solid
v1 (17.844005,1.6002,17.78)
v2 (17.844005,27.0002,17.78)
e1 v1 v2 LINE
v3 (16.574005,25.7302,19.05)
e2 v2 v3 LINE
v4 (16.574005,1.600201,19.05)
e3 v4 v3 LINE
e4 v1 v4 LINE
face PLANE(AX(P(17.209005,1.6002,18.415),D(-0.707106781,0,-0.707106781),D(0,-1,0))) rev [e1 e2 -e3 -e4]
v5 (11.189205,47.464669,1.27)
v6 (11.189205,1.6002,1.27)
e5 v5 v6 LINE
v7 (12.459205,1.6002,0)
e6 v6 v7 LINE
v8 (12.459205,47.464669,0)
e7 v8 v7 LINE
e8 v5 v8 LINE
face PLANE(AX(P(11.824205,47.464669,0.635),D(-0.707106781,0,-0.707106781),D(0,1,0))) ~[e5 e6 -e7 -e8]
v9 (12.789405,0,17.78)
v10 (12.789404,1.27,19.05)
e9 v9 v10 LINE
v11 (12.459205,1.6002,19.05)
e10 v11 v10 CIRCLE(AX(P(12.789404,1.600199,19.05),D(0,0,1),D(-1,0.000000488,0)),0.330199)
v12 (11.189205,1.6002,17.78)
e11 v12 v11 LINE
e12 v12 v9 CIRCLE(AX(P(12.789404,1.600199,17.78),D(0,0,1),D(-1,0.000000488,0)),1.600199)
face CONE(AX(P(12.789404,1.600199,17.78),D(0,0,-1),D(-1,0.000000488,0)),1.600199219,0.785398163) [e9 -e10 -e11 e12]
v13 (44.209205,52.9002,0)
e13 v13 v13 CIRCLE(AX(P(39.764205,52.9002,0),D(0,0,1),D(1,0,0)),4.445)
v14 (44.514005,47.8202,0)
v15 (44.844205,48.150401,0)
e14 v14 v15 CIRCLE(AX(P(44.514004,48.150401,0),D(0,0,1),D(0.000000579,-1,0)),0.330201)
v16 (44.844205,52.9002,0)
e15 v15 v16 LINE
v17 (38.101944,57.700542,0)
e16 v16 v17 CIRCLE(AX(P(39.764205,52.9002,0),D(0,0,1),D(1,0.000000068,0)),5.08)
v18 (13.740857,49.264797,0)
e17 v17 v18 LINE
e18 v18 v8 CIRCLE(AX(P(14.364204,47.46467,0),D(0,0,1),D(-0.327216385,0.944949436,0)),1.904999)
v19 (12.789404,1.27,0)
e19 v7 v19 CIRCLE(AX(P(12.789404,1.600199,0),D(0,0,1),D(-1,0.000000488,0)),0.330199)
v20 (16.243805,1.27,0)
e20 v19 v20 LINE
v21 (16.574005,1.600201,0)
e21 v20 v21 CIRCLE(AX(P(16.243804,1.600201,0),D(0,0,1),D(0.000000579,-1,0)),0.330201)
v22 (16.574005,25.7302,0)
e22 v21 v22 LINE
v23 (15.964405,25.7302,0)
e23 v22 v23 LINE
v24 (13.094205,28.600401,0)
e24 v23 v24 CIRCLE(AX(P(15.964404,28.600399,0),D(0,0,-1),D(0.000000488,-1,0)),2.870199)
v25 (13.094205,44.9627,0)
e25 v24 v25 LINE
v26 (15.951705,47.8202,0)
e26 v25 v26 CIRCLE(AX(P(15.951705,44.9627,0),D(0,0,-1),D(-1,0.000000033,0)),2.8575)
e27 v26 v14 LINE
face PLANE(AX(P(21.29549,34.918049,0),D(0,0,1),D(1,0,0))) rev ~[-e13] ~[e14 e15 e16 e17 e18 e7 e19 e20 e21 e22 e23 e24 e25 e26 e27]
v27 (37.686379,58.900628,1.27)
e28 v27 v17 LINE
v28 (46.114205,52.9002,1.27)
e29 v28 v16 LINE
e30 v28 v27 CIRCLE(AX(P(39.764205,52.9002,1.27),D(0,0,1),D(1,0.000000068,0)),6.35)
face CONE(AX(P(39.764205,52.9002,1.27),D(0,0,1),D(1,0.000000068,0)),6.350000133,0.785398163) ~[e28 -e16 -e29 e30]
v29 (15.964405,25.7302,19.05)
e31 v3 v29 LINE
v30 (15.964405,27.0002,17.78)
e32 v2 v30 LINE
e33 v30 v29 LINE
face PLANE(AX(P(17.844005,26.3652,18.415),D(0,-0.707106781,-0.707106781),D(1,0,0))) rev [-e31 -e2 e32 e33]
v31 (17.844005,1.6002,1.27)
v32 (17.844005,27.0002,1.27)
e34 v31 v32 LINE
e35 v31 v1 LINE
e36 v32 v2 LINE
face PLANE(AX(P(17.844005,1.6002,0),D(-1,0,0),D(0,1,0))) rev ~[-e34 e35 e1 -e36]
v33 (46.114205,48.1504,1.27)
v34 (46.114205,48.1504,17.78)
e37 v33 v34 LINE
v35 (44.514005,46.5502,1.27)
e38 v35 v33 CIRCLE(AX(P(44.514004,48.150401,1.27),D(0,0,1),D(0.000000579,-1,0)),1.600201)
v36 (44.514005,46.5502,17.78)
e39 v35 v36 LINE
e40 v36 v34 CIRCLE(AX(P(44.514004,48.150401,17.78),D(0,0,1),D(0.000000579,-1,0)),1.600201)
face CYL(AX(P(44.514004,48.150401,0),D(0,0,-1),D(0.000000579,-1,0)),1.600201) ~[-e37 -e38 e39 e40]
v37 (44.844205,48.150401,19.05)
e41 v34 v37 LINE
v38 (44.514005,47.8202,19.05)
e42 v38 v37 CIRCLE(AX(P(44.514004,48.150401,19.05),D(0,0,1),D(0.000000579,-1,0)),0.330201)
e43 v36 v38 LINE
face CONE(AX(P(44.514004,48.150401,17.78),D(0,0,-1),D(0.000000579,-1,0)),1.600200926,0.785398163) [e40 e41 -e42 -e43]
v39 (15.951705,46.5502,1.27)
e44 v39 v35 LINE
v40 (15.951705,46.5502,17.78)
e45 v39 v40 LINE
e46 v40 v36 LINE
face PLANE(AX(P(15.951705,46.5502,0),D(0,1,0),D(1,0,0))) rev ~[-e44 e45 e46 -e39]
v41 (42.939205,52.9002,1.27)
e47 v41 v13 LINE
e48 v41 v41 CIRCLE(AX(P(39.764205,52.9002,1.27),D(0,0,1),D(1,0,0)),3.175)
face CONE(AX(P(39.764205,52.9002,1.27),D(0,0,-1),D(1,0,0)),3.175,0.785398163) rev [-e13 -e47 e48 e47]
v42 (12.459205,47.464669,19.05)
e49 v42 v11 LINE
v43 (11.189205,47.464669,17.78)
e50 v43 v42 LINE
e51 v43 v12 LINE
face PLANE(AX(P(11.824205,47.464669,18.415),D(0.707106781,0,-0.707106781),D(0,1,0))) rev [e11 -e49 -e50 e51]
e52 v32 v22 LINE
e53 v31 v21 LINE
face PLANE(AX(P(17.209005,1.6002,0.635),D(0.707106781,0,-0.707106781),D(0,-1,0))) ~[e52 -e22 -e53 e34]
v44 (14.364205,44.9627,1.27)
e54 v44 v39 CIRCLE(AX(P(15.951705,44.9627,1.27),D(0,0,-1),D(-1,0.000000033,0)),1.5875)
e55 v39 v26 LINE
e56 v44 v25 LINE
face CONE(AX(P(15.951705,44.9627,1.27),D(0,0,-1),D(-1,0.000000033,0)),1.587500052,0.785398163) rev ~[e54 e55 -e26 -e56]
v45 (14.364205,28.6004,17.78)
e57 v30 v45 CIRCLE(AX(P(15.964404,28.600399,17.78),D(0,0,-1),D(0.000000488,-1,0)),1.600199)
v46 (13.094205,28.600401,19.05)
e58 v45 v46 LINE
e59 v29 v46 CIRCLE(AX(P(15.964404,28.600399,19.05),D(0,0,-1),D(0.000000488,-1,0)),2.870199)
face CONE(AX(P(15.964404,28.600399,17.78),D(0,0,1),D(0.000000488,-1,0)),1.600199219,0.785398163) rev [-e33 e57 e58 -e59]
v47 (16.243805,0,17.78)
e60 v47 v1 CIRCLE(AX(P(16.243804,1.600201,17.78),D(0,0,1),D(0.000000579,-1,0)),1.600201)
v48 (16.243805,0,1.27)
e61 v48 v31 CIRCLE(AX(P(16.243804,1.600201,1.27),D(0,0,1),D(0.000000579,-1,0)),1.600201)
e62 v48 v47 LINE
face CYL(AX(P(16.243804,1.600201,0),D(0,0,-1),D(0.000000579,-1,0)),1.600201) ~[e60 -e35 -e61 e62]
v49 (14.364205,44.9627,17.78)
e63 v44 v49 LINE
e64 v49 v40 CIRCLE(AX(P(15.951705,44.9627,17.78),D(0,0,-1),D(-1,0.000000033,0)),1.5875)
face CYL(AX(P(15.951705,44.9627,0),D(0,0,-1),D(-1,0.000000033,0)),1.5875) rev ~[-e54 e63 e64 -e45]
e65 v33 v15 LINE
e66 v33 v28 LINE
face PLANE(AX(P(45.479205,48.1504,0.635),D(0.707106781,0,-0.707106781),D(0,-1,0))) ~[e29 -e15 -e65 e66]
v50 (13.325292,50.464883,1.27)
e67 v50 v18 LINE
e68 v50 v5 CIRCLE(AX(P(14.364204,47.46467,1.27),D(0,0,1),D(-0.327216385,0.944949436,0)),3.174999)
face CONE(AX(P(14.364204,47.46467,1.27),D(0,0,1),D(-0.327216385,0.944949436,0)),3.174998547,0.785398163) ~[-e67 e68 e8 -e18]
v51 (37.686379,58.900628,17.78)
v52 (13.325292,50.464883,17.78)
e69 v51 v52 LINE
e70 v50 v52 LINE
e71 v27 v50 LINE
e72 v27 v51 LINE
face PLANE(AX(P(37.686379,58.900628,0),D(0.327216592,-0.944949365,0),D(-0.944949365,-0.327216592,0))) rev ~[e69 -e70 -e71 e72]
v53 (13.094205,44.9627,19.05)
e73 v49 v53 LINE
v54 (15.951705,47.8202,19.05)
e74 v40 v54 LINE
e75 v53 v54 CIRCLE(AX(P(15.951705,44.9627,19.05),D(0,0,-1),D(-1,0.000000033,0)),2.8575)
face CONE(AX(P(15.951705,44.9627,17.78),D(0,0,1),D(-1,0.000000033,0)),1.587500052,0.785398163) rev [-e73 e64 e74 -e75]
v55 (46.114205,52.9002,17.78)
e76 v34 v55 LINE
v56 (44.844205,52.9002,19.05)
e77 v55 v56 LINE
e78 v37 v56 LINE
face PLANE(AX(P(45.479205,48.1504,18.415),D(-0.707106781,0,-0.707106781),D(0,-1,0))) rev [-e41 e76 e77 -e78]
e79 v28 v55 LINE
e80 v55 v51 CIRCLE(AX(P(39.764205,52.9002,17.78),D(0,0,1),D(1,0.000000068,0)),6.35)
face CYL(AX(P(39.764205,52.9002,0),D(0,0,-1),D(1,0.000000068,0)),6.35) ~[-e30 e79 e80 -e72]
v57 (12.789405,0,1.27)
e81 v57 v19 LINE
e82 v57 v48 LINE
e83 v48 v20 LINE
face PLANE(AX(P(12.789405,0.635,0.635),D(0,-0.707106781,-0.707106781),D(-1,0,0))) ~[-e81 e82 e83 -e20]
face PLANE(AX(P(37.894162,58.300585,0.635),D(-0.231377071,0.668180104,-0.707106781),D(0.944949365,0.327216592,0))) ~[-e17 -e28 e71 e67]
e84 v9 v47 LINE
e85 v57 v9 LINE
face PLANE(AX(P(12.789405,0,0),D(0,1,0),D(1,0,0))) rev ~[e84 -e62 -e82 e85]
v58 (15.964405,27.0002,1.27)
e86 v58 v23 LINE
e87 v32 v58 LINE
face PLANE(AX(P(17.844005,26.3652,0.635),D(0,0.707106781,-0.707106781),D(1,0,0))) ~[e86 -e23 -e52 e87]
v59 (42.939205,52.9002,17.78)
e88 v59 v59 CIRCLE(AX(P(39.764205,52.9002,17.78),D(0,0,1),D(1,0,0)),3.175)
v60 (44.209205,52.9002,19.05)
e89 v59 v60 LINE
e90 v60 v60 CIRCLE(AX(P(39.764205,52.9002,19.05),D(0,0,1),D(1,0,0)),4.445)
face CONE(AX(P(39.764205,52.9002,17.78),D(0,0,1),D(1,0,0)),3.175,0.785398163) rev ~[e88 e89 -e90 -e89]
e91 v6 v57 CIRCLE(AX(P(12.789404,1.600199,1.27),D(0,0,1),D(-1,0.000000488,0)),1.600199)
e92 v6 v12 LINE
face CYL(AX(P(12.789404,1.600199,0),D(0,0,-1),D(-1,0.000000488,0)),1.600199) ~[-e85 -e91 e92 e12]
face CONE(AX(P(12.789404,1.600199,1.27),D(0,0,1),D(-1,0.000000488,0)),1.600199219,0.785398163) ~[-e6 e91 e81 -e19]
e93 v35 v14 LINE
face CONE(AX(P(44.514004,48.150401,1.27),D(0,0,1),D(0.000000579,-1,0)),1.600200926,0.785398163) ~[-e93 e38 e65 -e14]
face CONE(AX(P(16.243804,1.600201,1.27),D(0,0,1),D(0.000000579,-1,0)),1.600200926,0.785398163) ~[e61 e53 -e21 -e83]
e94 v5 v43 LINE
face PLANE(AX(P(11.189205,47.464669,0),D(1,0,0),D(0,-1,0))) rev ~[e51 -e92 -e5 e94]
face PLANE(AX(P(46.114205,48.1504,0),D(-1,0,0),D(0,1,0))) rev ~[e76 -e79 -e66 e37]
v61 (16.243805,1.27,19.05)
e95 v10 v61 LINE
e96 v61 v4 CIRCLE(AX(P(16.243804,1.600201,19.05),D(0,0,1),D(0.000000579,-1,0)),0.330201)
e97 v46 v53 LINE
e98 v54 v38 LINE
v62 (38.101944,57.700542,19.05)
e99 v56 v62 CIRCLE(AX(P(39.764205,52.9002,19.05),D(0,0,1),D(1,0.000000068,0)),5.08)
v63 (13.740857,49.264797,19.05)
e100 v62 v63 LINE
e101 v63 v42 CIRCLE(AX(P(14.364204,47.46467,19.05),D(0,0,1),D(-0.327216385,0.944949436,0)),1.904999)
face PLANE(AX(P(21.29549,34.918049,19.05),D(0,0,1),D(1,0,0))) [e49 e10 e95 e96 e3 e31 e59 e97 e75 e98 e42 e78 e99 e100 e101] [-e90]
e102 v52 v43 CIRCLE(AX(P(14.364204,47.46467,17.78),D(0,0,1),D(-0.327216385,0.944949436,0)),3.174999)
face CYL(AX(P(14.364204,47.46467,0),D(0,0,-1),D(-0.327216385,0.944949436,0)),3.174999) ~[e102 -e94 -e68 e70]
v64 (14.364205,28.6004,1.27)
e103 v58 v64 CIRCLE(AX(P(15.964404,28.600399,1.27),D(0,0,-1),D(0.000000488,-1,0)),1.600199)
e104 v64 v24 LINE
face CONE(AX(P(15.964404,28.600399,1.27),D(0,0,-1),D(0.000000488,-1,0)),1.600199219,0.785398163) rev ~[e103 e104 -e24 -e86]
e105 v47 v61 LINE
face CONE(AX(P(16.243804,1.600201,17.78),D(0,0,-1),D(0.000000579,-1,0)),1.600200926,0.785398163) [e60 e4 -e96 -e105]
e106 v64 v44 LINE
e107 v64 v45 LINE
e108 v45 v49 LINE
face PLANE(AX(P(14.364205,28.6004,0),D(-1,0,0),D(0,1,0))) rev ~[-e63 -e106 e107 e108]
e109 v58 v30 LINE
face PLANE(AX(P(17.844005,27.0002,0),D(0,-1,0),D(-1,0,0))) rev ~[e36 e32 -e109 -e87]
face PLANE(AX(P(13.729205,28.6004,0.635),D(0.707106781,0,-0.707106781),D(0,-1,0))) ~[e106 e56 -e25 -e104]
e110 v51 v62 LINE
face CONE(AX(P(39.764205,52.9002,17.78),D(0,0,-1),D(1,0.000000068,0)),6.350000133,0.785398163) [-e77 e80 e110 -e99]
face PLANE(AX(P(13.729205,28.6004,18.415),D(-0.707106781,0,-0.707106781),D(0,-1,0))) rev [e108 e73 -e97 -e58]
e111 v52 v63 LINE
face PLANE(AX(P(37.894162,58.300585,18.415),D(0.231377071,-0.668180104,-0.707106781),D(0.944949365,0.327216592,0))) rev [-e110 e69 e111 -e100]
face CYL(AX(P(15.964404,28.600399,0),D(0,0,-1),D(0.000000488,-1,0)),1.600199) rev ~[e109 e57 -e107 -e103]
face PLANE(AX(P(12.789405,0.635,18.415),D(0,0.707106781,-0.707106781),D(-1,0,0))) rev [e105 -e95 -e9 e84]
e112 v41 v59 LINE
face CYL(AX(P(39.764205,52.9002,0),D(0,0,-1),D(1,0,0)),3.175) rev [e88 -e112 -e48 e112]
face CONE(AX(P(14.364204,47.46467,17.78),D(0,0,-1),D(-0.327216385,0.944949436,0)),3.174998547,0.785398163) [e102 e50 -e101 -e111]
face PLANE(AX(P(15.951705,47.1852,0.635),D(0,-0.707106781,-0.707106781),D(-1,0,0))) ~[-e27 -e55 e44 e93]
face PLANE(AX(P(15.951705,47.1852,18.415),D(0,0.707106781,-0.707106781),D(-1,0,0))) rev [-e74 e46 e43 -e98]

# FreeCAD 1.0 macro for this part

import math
import FreeCAD as App
import Part
import Sketcher
from FreeCAD import Vector
Q = App.Units.Quantity


def edges_at(feature, points):
    """Names of the edges that pass closest to the given points."""
    edges = feature.Shape.Edges
    near = lambda p: min(range(len(edges)), key=lambda i: edges[i].distToShape(Part.Vertex(*p))[0])
    return sorted({f"Edge{near(p) + 1}" for p in points})

doc = App.newDocument("Part")
params = doc.addObject("Spreadsheet::Sheet", "Params")
for row, (alias, value) in enumerate([
    ("sketch1_diameter", "0.25 in"),
    ("sketch1_height", "1 in"),
    ("sketch1_radius", "0.25 in"),
    ("sketch1_radius2", "0.063 in"),
    ("sketch1_radius3", "0.0625 in"),
    ("pad1_length", "0.75 in"),
    ("chamfer_size", "0.05 in"),
], start=1):
    params.set(f"A{row}", alias)
    params.set(f"B{row}", "=" + value)
    params.setAlias(f"B{row}", alias)

body = doc.addObject("PartDesign::Body", "Body")

# Sketch on XY plane
sketch1 = body.newObject("Sketcher::SketchObject", "Sketch")
sketch1.AttachmentSupport = (doc.getObject("XY_Plane"), [""])
sketch1.MapMode = "FlatFace"
sketch1.addGeometry(Part.ArcOfCircle(Part.Circle(Vector(16, 28.6, 0), Vector(0, 0, 1), 1.6), math.radians(180), math.radians(270)), False)
sketch1.addGeometry(Part.LineSegment(Vector(14.4, 28.6, 0), Vector(14.4, 45, 0)), False)
sketch1.addGeometry(Part.ArcOfCircle(Part.Circle(Vector(16, 45, 0), Vector(0, 0, 1), 1.6), math.radians(90), math.radians(180)), False)
sketch1.addGeometry(Part.LineSegment(Vector(16, 46.6, 0), Vector(44.5, 46.6, 0)), False)
sketch1.addGeometry(Part.ArcOfCircle(Part.Circle(Vector(44.5, 48.2, 0), Vector(0, 0, 1), 1.6), math.radians(-90), math.radians(0)), False)
sketch1.addGeometry(Part.LineSegment(Vector(46.1, 48.2, 0), Vector(46.1, 52.9, 0)), False)
sketch1.addGeometry(Part.ArcOfCircle(Part.Circle(Vector(39.8, 52.9, 0), Vector(0, 0, 1), 6.4), math.radians(0), math.radians(109)), False)
sketch1.addGeometry(Part.LineSegment(Vector(37.7, 58.9, 0), Vector(13.3, 50.5, 0)), False)
sketch1.addGeometry(Part.ArcOfCircle(Part.Circle(Vector(14.4, 47.5, 0), Vector(0, 0, 1), 3.2), math.radians(109), math.radians(180)), False)
sketch1.addGeometry(Part.LineSegment(Vector(11.2, 47.5, 0), Vector(11.2, 1.6, 0)), False)
sketch1.addGeometry(Part.ArcOfCircle(Part.Circle(Vector(12.8, 1.6, 0), Vector(0, 0, 1), 1.6), math.radians(180), math.radians(270)), False)
sketch1.addGeometry(Part.LineSegment(Vector(12.8, 0, 0), Vector(16.2, 0, 0)), False)
sketch1.addGeometry(Part.ArcOfCircle(Part.Circle(Vector(16.2, 1.6, 0), Vector(0, 0, 1), 1.6), math.radians(-90), math.radians(0)), False)
sketch1.addGeometry(Part.LineSegment(Vector(17.8, 1.6, 0), Vector(17.8, 27, 0)), False)
sketch1.addGeometry(Part.LineSegment(Vector(17.8, 27, 0), Vector(16, 27, 0)), False)
sketch1.addGeometry(Part.Circle(Vector(39.8, 52.9, 0), Vector(0, 0, 1), 3.2), False)
sketch1.addConstraint(Sketcher.Constraint("Tangent", 0, 1, 1, 1))
sketch1.addConstraint(Sketcher.Constraint("Tangent", 1, 2, 2, 2))
sketch1.addConstraint(Sketcher.Constraint("Tangent", 2, 1, 3, 1))
sketch1.addConstraint(Sketcher.Constraint("Tangent", 3, 2, 4, 1))
sketch1.addConstraint(Sketcher.Constraint("Tangent", 4, 2, 5, 1))
sketch1.addConstraint(Sketcher.Constraint("Tangent", 5, 2, 6, 1))
sketch1.addConstraint(Sketcher.Constraint("Tangent", 6, 2, 7, 1))
sketch1.addConstraint(Sketcher.Constraint("Tangent", 7, 2, 8, 1))
sketch1.addConstraint(Sketcher.Constraint("Tangent", 8, 2, 9, 1))
sketch1.addConstraint(Sketcher.Constraint("Tangent", 9, 2, 10, 1))
sketch1.addConstraint(Sketcher.Constraint("Tangent", 10, 2, 11, 1))
sketch1.addConstraint(Sketcher.Constraint("Tangent", 11, 2, 12, 1))
sketch1.addConstraint(Sketcher.Constraint("Tangent", 12, 2, 13, 1))
sketch1.addConstraint(Sketcher.Constraint("Coincident", 13, 2, 14, 1))
sketch1.addConstraint(Sketcher.Constraint("Tangent", 14, 2, 0, 2))
sketch1.addConstraint(Sketcher.Constraint("Vertical", 1))
sketch1.addConstraint(Sketcher.Constraint("Horizontal", 3))
sketch1.addConstraint(Sketcher.Constraint("Vertical", 5))
sketch1.addConstraint(Sketcher.Constraint("Vertical", 9))
sketch1.addConstraint(Sketcher.Constraint("Horizontal", 11))
sketch1.addConstraint(Sketcher.Constraint("Vertical", 13))
sketch1.addConstraint(Sketcher.Constraint("Horizontal", 14))
sketch1.addConstraint(Sketcher.Constraint("Coincident", 15, 3, 6, 3))
sketch1.addConstraint(Sketcher.Constraint("Equal", 0, 4))
sketch1.addConstraint(Sketcher.Constraint("Equal", 4, 10))
sketch1.addConstraint(Sketcher.Constraint("Equal", 10, 12))
sketch1.addConstraint(Sketcher.Constraint("Equal", 8, 15))
sketch1.addConstraint(Sketcher.Constraint("PointOnObject", 10, 2, -1))
sketch1.addConstraint(Sketcher.Constraint("Vertical", 8, 3, 0, 1))
sketch1.addConstraint(Sketcher.Constraint("Diameter", 15, Q("0.25 in")))
sketch1.addConstraint(Sketcher.Constraint("DistanceY", 13, 1, 13, 2, Q("1 in")))
sketch1.addConstraint(Sketcher.Constraint("Radius", 6, Q("0.25 in")))
sketch1.addConstraint(Sketcher.Constraint("Radius", 0, Q("0.063 in")))
sketch1.addConstraint(Sketcher.Constraint("Radius", 2, Q("0.0625 in")))
sketch1.addConstraint(Sketcher.Constraint("DistanceX", 8, 3, 6, 3, Q("1.0000001 in")))
sketch1.addConstraint(Sketcher.Constraint("DistanceX", 11, 1, 11, 2, Q("0.136 in")))
sketch1.addConstraint(Sketcher.Constraint("DistanceY", 5, 1, 5, 2, Q("0.187 in")))
sketch1.addConstraint(Sketcher.Constraint("DistanceY", 1, 1, 1, 2, 16.3623))
sketch1.addConstraint(Sketcher.Constraint("DistanceY", 9, 2, 9, 1, 45.864469))
sketch1.addConstraint(Sketcher.Constraint("DistanceX", -1, 1, 6, 2, 37.686379))
sketch1.setExpression("Constraints[29]", "Params.sketch1_diameter")
sketch1.setExpression("Constraints[30]", "Params.sketch1_height")
sketch1.setExpression("Constraints[31]", "Params.sketch1_radius")
sketch1.setExpression("Constraints[32]", "Params.sketch1_radius2")
sketch1.setExpression("Constraints[33]", "Params.sketch1_radius3")
pad1 = body.newObject("PartDesign::Pad", "Pad")
pad1.Profile = sketch1
pad1.setExpression("Length", "Params.pad1_length")
doc.recompute()

chamfer = body.newObject("PartDesign::Chamfer", "Chamfer")
chamfer.Base = (pad1, edges_at(pad1, [
    (25.506, 54.683, 19.05),
    (36.589, 52.9, 19.05),
    (30.233, 46.55, 0),
    (36.589, 52.9, 0),
]))
chamfer.setExpression("Size", "Params.chamfer_size")

doc.recompute()
